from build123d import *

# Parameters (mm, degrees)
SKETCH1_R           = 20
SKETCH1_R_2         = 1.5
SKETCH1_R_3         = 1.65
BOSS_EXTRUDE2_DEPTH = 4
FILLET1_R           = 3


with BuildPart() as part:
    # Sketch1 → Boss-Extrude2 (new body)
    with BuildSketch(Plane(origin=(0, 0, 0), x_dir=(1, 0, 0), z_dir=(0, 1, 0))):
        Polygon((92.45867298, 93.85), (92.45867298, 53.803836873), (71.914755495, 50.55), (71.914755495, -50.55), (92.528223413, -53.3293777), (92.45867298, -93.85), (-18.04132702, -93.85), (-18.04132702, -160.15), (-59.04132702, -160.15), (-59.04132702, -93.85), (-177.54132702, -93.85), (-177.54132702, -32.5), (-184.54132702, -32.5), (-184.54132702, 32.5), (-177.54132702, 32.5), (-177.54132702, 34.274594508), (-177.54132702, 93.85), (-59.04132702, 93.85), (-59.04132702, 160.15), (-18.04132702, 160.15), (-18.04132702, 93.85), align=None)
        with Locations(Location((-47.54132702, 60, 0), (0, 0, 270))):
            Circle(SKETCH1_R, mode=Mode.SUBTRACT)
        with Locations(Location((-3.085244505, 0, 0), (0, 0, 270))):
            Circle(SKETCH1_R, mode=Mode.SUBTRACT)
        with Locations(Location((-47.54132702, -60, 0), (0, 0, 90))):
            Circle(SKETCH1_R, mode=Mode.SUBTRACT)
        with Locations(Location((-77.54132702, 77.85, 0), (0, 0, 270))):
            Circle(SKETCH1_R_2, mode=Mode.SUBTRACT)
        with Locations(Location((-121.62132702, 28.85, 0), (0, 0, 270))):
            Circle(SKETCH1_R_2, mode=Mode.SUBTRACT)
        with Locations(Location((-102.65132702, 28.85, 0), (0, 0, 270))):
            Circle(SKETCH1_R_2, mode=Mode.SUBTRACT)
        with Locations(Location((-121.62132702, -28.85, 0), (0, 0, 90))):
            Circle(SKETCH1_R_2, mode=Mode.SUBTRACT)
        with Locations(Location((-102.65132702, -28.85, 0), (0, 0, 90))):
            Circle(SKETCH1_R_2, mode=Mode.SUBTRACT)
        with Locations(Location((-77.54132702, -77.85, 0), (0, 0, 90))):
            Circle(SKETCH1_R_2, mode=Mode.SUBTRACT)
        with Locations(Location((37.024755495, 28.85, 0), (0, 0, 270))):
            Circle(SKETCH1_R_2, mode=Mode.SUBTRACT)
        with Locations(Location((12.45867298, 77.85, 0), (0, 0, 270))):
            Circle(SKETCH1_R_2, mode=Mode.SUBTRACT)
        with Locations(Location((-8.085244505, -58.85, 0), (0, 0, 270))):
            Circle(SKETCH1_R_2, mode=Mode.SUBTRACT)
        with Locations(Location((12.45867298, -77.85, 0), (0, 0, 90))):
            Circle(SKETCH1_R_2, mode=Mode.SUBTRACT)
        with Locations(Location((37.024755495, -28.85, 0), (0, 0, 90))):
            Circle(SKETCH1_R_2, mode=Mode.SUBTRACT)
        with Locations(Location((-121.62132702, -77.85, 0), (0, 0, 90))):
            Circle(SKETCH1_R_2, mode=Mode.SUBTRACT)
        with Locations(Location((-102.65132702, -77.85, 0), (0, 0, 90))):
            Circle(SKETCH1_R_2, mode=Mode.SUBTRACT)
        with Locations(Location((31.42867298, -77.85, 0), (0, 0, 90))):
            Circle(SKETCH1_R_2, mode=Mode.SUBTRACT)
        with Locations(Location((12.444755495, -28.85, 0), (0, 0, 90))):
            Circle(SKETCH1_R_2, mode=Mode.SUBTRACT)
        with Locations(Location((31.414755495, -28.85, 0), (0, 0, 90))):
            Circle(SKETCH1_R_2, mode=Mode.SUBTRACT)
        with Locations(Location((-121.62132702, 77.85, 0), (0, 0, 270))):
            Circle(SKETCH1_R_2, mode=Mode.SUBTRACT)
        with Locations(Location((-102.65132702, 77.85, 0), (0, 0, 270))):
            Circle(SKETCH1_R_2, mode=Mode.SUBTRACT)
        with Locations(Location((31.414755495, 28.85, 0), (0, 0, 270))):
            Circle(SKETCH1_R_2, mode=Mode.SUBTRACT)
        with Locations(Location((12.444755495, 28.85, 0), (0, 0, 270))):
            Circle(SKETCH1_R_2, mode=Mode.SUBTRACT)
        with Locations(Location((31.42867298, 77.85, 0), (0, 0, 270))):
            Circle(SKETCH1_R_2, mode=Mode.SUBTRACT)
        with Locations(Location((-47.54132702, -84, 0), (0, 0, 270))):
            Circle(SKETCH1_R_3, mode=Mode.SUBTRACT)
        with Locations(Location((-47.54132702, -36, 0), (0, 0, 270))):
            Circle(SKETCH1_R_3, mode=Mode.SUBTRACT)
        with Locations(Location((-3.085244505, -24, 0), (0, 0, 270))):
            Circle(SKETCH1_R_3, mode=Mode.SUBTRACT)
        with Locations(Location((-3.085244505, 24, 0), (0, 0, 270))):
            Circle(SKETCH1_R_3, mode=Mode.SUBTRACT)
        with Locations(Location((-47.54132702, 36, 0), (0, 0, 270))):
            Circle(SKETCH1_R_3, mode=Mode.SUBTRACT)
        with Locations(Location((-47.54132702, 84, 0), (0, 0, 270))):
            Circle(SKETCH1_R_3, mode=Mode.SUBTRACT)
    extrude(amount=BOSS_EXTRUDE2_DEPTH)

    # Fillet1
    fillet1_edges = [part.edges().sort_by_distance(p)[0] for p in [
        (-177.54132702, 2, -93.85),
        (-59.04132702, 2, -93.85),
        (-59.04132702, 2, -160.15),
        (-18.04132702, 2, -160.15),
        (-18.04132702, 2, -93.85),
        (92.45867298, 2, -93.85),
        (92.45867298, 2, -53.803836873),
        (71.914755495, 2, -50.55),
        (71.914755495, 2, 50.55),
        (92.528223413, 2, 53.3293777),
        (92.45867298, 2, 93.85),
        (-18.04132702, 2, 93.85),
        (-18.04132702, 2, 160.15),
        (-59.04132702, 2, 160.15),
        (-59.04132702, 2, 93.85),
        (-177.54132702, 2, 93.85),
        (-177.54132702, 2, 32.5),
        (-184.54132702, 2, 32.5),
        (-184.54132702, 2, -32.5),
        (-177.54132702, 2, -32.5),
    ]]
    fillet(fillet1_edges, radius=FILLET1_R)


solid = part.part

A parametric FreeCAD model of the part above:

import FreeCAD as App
import Part
import Sketcher
from FreeCAD import Vector
Q = App.Units.Quantity


def edges_at(feature, points):
    """Names of the edges that pass closest to the given points."""
    edges = feature.Shape.Edges
    near = lambda p: min(range(len(edges)), key=lambda i: edges[i].distToShape(Part.Vertex(*p))[0])
    return sorted({f"Edge{near(p) + 1}" for p in points})


def add_polygon(sketch, points):
    """Adds a closed chain of lines whose ends are joined by coincident constraints."""
    first, n = sketch.GeometryCount, len(points)
    for a, b in zip(points, points[1:] + points[:1]):
        sketch.addGeometry(Part.LineSegment(App.Vector(*a, 0), App.Vector(*b, 0)), False)
    for i in range(n):
        sketch.addConstraint(Sketcher.Constraint("Coincident", first + i, 2, first + (i + 1) % n, 1))

doc = App.newDocument("Part")
body = doc.addObject("PartDesign::Body", "Body")

# Sketch on XZ plane
sketch1 = body.newObject("Sketcher::SketchObject", "Sketch")
sketch1.AttachmentSupport = (doc.getObject("XZ_Plane"), [""])
sketch1.MapMode = "FlatFace"
add_polygon(sketch1, [(92.458673, -53.803837), (92.458673, -93.85), (-18.041327, -93.85), (-18.041327, -160.15), (-59.041327, -160.15), (-59.041327, -93.85), (-177.541327, -93.85), (-177.541327, -32.5), (-184.541327, -32.5), (-184.541327, 32.5), (-177.541327, 32.5), (-177.541327, 93.85), (-59.041327, 93.85), (-59.041327, 160.15), (-18.041327, 160.15), (-18.041327, 93.85), (92.458673, 93.85), (92.528223, 53.329378), (71.914755, 50.55), (71.914755, -50.55)])  # lines 0-19
sketch1.addGeometry(Part.Circle(Vector(31.428673, 77.85, 0), Vector(0, 0, 1), 1.5), False)  # 20
sketch1.addGeometry(Part.Circle(Vector(12.458673, 77.85, 0), Vector(0, 0, 1), 1.5), False)  # 21
sketch1.addGeometry(Part.Circle(Vector(-8.085245, 58.85, 0), Vector(0, 0, 1), 1.5), False)  # 22
sketch1.addGeometry(Part.Circle(Vector(37.024755, 28.85, 0), Vector(0, 0, 1), 1.5), False)  # 23
sketch1.addGeometry(Part.Circle(Vector(31.414755, 28.85, 0), Vector(0, 0, 1), 1.5), False)  # 24
sketch1.addGeometry(Part.Circle(Vector(12.444755, 28.85, 0), Vector(0, 0, 1), 1.5), False)  # 25
sketch1.addGeometry(Part.Circle(Vector(-3.085245, 24, 0), Vector(0, 0, 1), 1.65), False)  # 26
sketch1.addGeometry(Part.Circle(Vector(-47.541327, 84, 0), Vector(0, 0, 1), 1.65), False)  # 27
sketch1.addGeometry(Part.Circle(Vector(-77.541327, 77.85, 0), Vector(0, 0, 1), 1.5), False)  # 28
sketch1.addGeometry(Part.Circle(Vector(-47.541327, 60, 0), Vector(0, 0, 1), 20), False)  # 29
sketch1.addGeometry(Part.Circle(Vector(-102.651327, 77.85, 0), Vector(0, 0, 1), 1.5), False)  # 30
sketch1.addGeometry(Part.Circle(Vector(-121.621327, 77.85, 0), Vector(0, 0, 1), 1.5), False)  # 31
sketch1.addGeometry(Part.Circle(Vector(-47.541327, 36, 0), Vector(0, 0, 1), 1.65), False)  # 32
sketch1.addGeometry(Part.Circle(Vector(-102.651327, 28.85, 0), Vector(0, 0, 1), 1.5), False)  # 33
sketch1.addGeometry(Part.Circle(Vector(-121.621327, 28.85, 0), Vector(0, 0, 1), 1.5), False)  # 34
sketch1.addGeometry(Part.Circle(Vector(37.024755, -28.85, 0), Vector(0, 0, 1), 1.5), False)  # 35
sketch1.addGeometry(Part.Circle(Vector(31.414755, -28.85, 0), Vector(0, 0, 1), 1.5), False)  # 36
sketch1.addGeometry(Part.Circle(Vector(12.444755, -28.85, 0), Vector(0, 0, 1), 1.5), False)  # 37
sketch1.addGeometry(Part.Circle(Vector(-3.085245, 0, 0), Vector(0, 0, 1), 20), False)  # 38
sketch1.addGeometry(Part.Circle(Vector(-3.085245, -24, 0), Vector(0, 0, 1), 1.65), False)  # 39
sketch1.addGeometry(Part.Circle(Vector(31.428673, -77.85, 0), Vector(0, 0, 1), 1.5), False)  # 40
sketch1.addGeometry(Part.Circle(Vector(12.458673, -77.85, 0), Vector(0, 0, 1), 1.5), False)  # 41
sketch1.addGeometry(Part.Circle(Vector(-47.541327, -36, 0), Vector(0, 0, 1), 1.65), False)  # 42
sketch1.addGeometry(Part.Circle(Vector(-102.651327, -28.85, 0), Vector(0, 0, 1), 1.5), False)  # 43
sketch1.addGeometry(Part.Circle(Vector(-121.621327, -28.85, 0), Vector(0, 0, 1), 1.5), False)  # 44
sketch1.addGeometry(Part.Circle(Vector(-47.541327, -60, 0), Vector(0, 0, 1), 20), False)  # 45
sketch1.addGeometry(Part.Circle(Vector(-47.541327, -84, 0), Vector(0, 0, 1), 1.65), False)  # 46
sketch1.addGeometry(Part.Circle(Vector(-77.541327, -77.85, 0), Vector(0, 0, 1), 1.5), False)  # 47
sketch1.addGeometry(Part.Circle(Vector(-102.651327, -77.85, 0), Vector(0, 0, 1), 1.5), False)  # 48
sketch1.addGeometry(Part.Circle(Vector(-121.621327, -77.85, 0), Vector(0, 0, 1), 1.5), False)  # 49
sketch1.addConstraint([
    Sketcher.Constraint("Vertical", 0),
    Sketcher.Constraint("Horizontal", 1),
    Sketcher.Constraint("Vertical", 2),
    Sketcher.Constraint("Horizontal", 3),
    Sketcher.Constraint("Vertical", 4),
    Sketcher.Constraint("Horizontal", 5),
    Sketcher.Constraint("Vertical", 6),
    Sketcher.Constraint("Horizontal", 7),
    Sketcher.Constraint("Vertical", 8),
    Sketcher.Constraint("Horizontal", 9),
    Sketcher.Constraint("Vertical", 10),
    Sketcher.Constraint("Horizontal", 11),
    Sketcher.Constraint("Vertical", 12),
    Sketcher.Constraint("Horizontal", 13),
    Sketcher.Constraint("Vertical", 14),
    Sketcher.Constraint("Horizontal", 15),
    Sketcher.Constraint("Vertical", 18),
    Sketcher.Constraint("Equal", 20, 21),
    Sketcher.Constraint("Equal", 21, 22),
    Sketcher.Constraint("Equal", 22, 23),
    Sketcher.Constraint("Equal", 23, 24),
    Sketcher.Constraint("Equal", 24, 25),
    Sketcher.Constraint("Equal", 26, 27),
    Sketcher.Constraint("Equal", 25, 28),
    Sketcher.Constraint("Equal", 28, 30),
    Sketcher.Constraint("Equal", 30, 31),
    Sketcher.Constraint("Equal", 27, 32),
    Sketcher.Constraint("Equal", 31, 33),
    Sketcher.Constraint("Equal", 33, 34),
    Sketcher.Constraint("Equal", 34, 35),
    Sketcher.Constraint("Equal", 35, 36),
    Sketcher.Constraint("Equal", 36, 37),
    Sketcher.Constraint("Equal", 29, 38),
    Sketcher.Constraint("Equal", 32, 39),
    Sketcher.Constraint("Equal", 37, 40),
    Sketcher.Constraint("Equal", 40, 41),
    Sketcher.Constraint("Equal", 39, 42),
    Sketcher.Constraint("Equal", 41, 43),
    Sketcher.Constraint("Equal", 43, 44),
    Sketcher.Constraint("Equal", 38, 45),
    Sketcher.Constraint("Equal", 42, 46),
    Sketcher.Constraint("Equal", 44, 47),
    Sketcher.Constraint("Equal", 47, 48),
    Sketcher.Constraint("Equal", 48, 49),
    Sketcher.Constraint("Symmetric", 23, 3, 35, 3, -1),
    Sketcher.Constraint("Symmetric", 24, 3, 36, 3, -1),
    Sketcher.Constraint("Symmetric", 25, 3, 37, 3, -1),
    Sketcher.Constraint("Symmetric", 26, 3, 39, 3, -1),
    Sketcher.Constraint("Symmetric", 20, 3, 40, 3, -1),
    Sketcher.Constraint("Symmetric", 21, 3, 41, 3, -1),
    Sketcher.Constraint("Symmetric", 32, 3, 42, 3, -1),
    Sketcher.Constraint("Symmetric", 33, 3, 43, 3, -1),
    Sketcher.Constraint("Symmetric", 34, 3, 44, 3, -1),
    Sketcher.Constraint("Symmetric", 29, 3, 45, 3, -1),
    Sketcher.Constraint("Symmetric", 27, 3, 46, 3, -1),
    Sketcher.Constraint("Symmetric", 28, 3, 47, 3, -1),
    Sketcher.Constraint("Symmetric", 30, 3, 48, 3, -1),
    Sketcher.Constraint("Symmetric", 31, 3, 49, 3, -1),
    Sketcher.Constraint("Symmetric", 6, 2, 9, 2, -1),
    Sketcher.Constraint("Symmetric", 4, 2, 11, 2, -1),
    Sketcher.Constraint("Symmetric", 2, 2, 13, 2, -1),
    Sketcher.Constraint("Symmetric", 0, 2, 15, 2, -1),
    Sketcher.Constraint("PointOnObject", 38, 3, -1),
    Sketcher.Constraint("Horizontal", 20, 3, 21, 3),
    Sketcher.Constraint("Horizontal", 23, 3, 24, 3),
    Sketcher.Constraint("Horizontal", 24, 3, 25, 3),
    Sketcher.Constraint("Horizontal", 21, 3, 28, 3),
    Sketcher.Constraint("Horizontal", 28, 3, 30, 3),
    Sketcher.Constraint("Horizontal", 30, 3, 31, 3),
    Sketcher.Constraint("Horizontal", 25, 3, 33, 3),
    Sketcher.Constraint("Horizontal", 33, 3, 34, 3),
    Sketcher.Constraint("Horizontal", 1, 2, 4, 2),
    Sketcher.Constraint("Vertical", 27, 3, 29, 3),
    Sketcher.Constraint("Vertical", 29, 3, 32, 3),
    Sketcher.Constraint("Vertical", 30, 3, 33, 3),
    Sketcher.Constraint("Vertical", 31, 3, 34, 3),
    Sketcher.Constraint("Vertical", 26, 3, 38, 3),
    Sketcher.Constraint("Equal", 17, 19),
    Sketcher.Constraint("Diameter", 20, Q("3 mm")),
    Sketcher.Constraint("Diameter", 29, Q("40 mm")),
    Sketcher.Constraint("Diameter", 26, Q("3.3 mm")),
    Sketcher.Constraint("DistanceX", 3, 2, 3, 1, Q("41 mm")),
    Sketcher.Constraint("DistanceX", 7, 2, 7, 1, Q("7 mm")),
    Sketcher.Constraint("DistanceY", 8, 1, 8, 2, Q("65 mm")),
    Sketcher.Constraint("Angle", 19, Q("-9 deg")),
    Sketcher.Constraint("DistanceX", 1, 2, 1, 1, Q("110.5 mm")),
    Sketcher.Constraint("DistanceX", 5, 2, 5, 1, Q("118.5 mm")),
    Sketcher.Constraint("DistanceY", 2, 2, 2, 1, Q("66.3 mm")),
    Sketcher.Constraint("DistanceY", 18, 2, 18, 1, Q("101.1 mm")),
    Sketcher.Constraint("DistanceY", -1, 1, 26, 3, Q("24 mm")),
    Sketcher.Constraint("DistanceY", -1, 1, 27, 3, Q("84 mm")),
    Sketcher.Constraint("DistanceY", -1, 1, 29, 3, Q("60 mm")),
    Sketcher.Constraint("DistanceY", -1, 1, 32, 3, Q("36 mm")),
    Sketcher.Constraint("DistanceY", 22, 3, 21, 3, Q("19 mm")),
    Sketcher.Constraint("DistanceY", 23, 3, 20, 3, Q("49 mm")),
    Sketcher.Constraint("DistanceX", 22, 3, 26, 3, Q("5 mm")),
    Sketcher.Constraint("DistanceX", 27, 3, 21, 3, Q("60 mm")),
    Sketcher.Constraint("DistanceX", 28, 3, 27, 3, Q("30 mm")),
    Sketcher.Constraint("DistanceY", 0, 2, 40, 3, Q("16 mm")),
    Sketcher.Constraint("DistanceX", 41, 3, 0, 2, Q("80 mm")),
    Sketcher.Constraint("Distance", 17, Q("20.8 mm")),
    Sketcher.Constraint("DistanceY", 6, 1, 6, 2, Q("61.35 mm")),
    Sketcher.Constraint("DistanceX", 22, 3, 24, 3, Q("39.5 mm")),
    Sketcher.Constraint("DistanceY", 23, 3, 17, 2, Q("21.7 mm")),
    Sketcher.Constraint("DistanceX", 24, 3, 17, 2, Q("40.5 mm")),
    Sketcher.Constraint("DistanceX", 21, 3, 20, 3, Q("18.97 mm")),
    Sketcher.Constraint("DistanceX", 22, 3, 23, 3, Q("45.11 mm")),
    Sketcher.Constraint("DistanceX", 25, 3, 24, 3, Q("18.97 mm")),
    Sketcher.Constraint("DistanceX", 30, 3, 28, 3, Q("25.11 mm")),
    Sketcher.Constraint("DistanceX", 31, 3, 30, 3, Q("18.97 mm")),
    Sketcher.Constraint("Distance", 16, Q("40.520682 mm")),
    Sketcher.Constraint("DistanceX", -1, 1, 20, 3, Q("31.428673 mm")),
])
pad1 = body.newObject("PartDesign::Pad", "Pad")
pad1.Profile = sketch1
pad1.Length = 4
pad1.Reversed = True
doc.recompute()

fillet = body.newObject("PartDesign::Fillet", "Fillet")
fillet.Base = (pad1, edges_at(pad1, [
    (-177.541, 2, -93.85),
    (-59.041, 2, -93.85),
    (-59.041, 2, -160.15),
    (-18.041, 2, -160.15),
    (-18.041, 2, -93.85),
    (92.459, 2, -93.85),
    (92.459, 2, -53.804),
    (71.915, 2, -50.55),
    (71.915, 2, 50.55),
    (92.528, 2, 53.329),
    (92.459, 2, 93.85),
    (-18.041, 2, 93.85),
    (-18.041, 2, 160.15),
    (-59.041, 2, 160.15),
    (-59.041, 2, 93.85),
    (-177.541, 2, 93.85),
    (-177.541, 2, 32.5),
    (-184.541, 2, 32.5),
    (-184.541, 2, -32.5),
    (-177.541, 2, -32.5),
]))
fillet.Radius = 3

doc.recompute()
